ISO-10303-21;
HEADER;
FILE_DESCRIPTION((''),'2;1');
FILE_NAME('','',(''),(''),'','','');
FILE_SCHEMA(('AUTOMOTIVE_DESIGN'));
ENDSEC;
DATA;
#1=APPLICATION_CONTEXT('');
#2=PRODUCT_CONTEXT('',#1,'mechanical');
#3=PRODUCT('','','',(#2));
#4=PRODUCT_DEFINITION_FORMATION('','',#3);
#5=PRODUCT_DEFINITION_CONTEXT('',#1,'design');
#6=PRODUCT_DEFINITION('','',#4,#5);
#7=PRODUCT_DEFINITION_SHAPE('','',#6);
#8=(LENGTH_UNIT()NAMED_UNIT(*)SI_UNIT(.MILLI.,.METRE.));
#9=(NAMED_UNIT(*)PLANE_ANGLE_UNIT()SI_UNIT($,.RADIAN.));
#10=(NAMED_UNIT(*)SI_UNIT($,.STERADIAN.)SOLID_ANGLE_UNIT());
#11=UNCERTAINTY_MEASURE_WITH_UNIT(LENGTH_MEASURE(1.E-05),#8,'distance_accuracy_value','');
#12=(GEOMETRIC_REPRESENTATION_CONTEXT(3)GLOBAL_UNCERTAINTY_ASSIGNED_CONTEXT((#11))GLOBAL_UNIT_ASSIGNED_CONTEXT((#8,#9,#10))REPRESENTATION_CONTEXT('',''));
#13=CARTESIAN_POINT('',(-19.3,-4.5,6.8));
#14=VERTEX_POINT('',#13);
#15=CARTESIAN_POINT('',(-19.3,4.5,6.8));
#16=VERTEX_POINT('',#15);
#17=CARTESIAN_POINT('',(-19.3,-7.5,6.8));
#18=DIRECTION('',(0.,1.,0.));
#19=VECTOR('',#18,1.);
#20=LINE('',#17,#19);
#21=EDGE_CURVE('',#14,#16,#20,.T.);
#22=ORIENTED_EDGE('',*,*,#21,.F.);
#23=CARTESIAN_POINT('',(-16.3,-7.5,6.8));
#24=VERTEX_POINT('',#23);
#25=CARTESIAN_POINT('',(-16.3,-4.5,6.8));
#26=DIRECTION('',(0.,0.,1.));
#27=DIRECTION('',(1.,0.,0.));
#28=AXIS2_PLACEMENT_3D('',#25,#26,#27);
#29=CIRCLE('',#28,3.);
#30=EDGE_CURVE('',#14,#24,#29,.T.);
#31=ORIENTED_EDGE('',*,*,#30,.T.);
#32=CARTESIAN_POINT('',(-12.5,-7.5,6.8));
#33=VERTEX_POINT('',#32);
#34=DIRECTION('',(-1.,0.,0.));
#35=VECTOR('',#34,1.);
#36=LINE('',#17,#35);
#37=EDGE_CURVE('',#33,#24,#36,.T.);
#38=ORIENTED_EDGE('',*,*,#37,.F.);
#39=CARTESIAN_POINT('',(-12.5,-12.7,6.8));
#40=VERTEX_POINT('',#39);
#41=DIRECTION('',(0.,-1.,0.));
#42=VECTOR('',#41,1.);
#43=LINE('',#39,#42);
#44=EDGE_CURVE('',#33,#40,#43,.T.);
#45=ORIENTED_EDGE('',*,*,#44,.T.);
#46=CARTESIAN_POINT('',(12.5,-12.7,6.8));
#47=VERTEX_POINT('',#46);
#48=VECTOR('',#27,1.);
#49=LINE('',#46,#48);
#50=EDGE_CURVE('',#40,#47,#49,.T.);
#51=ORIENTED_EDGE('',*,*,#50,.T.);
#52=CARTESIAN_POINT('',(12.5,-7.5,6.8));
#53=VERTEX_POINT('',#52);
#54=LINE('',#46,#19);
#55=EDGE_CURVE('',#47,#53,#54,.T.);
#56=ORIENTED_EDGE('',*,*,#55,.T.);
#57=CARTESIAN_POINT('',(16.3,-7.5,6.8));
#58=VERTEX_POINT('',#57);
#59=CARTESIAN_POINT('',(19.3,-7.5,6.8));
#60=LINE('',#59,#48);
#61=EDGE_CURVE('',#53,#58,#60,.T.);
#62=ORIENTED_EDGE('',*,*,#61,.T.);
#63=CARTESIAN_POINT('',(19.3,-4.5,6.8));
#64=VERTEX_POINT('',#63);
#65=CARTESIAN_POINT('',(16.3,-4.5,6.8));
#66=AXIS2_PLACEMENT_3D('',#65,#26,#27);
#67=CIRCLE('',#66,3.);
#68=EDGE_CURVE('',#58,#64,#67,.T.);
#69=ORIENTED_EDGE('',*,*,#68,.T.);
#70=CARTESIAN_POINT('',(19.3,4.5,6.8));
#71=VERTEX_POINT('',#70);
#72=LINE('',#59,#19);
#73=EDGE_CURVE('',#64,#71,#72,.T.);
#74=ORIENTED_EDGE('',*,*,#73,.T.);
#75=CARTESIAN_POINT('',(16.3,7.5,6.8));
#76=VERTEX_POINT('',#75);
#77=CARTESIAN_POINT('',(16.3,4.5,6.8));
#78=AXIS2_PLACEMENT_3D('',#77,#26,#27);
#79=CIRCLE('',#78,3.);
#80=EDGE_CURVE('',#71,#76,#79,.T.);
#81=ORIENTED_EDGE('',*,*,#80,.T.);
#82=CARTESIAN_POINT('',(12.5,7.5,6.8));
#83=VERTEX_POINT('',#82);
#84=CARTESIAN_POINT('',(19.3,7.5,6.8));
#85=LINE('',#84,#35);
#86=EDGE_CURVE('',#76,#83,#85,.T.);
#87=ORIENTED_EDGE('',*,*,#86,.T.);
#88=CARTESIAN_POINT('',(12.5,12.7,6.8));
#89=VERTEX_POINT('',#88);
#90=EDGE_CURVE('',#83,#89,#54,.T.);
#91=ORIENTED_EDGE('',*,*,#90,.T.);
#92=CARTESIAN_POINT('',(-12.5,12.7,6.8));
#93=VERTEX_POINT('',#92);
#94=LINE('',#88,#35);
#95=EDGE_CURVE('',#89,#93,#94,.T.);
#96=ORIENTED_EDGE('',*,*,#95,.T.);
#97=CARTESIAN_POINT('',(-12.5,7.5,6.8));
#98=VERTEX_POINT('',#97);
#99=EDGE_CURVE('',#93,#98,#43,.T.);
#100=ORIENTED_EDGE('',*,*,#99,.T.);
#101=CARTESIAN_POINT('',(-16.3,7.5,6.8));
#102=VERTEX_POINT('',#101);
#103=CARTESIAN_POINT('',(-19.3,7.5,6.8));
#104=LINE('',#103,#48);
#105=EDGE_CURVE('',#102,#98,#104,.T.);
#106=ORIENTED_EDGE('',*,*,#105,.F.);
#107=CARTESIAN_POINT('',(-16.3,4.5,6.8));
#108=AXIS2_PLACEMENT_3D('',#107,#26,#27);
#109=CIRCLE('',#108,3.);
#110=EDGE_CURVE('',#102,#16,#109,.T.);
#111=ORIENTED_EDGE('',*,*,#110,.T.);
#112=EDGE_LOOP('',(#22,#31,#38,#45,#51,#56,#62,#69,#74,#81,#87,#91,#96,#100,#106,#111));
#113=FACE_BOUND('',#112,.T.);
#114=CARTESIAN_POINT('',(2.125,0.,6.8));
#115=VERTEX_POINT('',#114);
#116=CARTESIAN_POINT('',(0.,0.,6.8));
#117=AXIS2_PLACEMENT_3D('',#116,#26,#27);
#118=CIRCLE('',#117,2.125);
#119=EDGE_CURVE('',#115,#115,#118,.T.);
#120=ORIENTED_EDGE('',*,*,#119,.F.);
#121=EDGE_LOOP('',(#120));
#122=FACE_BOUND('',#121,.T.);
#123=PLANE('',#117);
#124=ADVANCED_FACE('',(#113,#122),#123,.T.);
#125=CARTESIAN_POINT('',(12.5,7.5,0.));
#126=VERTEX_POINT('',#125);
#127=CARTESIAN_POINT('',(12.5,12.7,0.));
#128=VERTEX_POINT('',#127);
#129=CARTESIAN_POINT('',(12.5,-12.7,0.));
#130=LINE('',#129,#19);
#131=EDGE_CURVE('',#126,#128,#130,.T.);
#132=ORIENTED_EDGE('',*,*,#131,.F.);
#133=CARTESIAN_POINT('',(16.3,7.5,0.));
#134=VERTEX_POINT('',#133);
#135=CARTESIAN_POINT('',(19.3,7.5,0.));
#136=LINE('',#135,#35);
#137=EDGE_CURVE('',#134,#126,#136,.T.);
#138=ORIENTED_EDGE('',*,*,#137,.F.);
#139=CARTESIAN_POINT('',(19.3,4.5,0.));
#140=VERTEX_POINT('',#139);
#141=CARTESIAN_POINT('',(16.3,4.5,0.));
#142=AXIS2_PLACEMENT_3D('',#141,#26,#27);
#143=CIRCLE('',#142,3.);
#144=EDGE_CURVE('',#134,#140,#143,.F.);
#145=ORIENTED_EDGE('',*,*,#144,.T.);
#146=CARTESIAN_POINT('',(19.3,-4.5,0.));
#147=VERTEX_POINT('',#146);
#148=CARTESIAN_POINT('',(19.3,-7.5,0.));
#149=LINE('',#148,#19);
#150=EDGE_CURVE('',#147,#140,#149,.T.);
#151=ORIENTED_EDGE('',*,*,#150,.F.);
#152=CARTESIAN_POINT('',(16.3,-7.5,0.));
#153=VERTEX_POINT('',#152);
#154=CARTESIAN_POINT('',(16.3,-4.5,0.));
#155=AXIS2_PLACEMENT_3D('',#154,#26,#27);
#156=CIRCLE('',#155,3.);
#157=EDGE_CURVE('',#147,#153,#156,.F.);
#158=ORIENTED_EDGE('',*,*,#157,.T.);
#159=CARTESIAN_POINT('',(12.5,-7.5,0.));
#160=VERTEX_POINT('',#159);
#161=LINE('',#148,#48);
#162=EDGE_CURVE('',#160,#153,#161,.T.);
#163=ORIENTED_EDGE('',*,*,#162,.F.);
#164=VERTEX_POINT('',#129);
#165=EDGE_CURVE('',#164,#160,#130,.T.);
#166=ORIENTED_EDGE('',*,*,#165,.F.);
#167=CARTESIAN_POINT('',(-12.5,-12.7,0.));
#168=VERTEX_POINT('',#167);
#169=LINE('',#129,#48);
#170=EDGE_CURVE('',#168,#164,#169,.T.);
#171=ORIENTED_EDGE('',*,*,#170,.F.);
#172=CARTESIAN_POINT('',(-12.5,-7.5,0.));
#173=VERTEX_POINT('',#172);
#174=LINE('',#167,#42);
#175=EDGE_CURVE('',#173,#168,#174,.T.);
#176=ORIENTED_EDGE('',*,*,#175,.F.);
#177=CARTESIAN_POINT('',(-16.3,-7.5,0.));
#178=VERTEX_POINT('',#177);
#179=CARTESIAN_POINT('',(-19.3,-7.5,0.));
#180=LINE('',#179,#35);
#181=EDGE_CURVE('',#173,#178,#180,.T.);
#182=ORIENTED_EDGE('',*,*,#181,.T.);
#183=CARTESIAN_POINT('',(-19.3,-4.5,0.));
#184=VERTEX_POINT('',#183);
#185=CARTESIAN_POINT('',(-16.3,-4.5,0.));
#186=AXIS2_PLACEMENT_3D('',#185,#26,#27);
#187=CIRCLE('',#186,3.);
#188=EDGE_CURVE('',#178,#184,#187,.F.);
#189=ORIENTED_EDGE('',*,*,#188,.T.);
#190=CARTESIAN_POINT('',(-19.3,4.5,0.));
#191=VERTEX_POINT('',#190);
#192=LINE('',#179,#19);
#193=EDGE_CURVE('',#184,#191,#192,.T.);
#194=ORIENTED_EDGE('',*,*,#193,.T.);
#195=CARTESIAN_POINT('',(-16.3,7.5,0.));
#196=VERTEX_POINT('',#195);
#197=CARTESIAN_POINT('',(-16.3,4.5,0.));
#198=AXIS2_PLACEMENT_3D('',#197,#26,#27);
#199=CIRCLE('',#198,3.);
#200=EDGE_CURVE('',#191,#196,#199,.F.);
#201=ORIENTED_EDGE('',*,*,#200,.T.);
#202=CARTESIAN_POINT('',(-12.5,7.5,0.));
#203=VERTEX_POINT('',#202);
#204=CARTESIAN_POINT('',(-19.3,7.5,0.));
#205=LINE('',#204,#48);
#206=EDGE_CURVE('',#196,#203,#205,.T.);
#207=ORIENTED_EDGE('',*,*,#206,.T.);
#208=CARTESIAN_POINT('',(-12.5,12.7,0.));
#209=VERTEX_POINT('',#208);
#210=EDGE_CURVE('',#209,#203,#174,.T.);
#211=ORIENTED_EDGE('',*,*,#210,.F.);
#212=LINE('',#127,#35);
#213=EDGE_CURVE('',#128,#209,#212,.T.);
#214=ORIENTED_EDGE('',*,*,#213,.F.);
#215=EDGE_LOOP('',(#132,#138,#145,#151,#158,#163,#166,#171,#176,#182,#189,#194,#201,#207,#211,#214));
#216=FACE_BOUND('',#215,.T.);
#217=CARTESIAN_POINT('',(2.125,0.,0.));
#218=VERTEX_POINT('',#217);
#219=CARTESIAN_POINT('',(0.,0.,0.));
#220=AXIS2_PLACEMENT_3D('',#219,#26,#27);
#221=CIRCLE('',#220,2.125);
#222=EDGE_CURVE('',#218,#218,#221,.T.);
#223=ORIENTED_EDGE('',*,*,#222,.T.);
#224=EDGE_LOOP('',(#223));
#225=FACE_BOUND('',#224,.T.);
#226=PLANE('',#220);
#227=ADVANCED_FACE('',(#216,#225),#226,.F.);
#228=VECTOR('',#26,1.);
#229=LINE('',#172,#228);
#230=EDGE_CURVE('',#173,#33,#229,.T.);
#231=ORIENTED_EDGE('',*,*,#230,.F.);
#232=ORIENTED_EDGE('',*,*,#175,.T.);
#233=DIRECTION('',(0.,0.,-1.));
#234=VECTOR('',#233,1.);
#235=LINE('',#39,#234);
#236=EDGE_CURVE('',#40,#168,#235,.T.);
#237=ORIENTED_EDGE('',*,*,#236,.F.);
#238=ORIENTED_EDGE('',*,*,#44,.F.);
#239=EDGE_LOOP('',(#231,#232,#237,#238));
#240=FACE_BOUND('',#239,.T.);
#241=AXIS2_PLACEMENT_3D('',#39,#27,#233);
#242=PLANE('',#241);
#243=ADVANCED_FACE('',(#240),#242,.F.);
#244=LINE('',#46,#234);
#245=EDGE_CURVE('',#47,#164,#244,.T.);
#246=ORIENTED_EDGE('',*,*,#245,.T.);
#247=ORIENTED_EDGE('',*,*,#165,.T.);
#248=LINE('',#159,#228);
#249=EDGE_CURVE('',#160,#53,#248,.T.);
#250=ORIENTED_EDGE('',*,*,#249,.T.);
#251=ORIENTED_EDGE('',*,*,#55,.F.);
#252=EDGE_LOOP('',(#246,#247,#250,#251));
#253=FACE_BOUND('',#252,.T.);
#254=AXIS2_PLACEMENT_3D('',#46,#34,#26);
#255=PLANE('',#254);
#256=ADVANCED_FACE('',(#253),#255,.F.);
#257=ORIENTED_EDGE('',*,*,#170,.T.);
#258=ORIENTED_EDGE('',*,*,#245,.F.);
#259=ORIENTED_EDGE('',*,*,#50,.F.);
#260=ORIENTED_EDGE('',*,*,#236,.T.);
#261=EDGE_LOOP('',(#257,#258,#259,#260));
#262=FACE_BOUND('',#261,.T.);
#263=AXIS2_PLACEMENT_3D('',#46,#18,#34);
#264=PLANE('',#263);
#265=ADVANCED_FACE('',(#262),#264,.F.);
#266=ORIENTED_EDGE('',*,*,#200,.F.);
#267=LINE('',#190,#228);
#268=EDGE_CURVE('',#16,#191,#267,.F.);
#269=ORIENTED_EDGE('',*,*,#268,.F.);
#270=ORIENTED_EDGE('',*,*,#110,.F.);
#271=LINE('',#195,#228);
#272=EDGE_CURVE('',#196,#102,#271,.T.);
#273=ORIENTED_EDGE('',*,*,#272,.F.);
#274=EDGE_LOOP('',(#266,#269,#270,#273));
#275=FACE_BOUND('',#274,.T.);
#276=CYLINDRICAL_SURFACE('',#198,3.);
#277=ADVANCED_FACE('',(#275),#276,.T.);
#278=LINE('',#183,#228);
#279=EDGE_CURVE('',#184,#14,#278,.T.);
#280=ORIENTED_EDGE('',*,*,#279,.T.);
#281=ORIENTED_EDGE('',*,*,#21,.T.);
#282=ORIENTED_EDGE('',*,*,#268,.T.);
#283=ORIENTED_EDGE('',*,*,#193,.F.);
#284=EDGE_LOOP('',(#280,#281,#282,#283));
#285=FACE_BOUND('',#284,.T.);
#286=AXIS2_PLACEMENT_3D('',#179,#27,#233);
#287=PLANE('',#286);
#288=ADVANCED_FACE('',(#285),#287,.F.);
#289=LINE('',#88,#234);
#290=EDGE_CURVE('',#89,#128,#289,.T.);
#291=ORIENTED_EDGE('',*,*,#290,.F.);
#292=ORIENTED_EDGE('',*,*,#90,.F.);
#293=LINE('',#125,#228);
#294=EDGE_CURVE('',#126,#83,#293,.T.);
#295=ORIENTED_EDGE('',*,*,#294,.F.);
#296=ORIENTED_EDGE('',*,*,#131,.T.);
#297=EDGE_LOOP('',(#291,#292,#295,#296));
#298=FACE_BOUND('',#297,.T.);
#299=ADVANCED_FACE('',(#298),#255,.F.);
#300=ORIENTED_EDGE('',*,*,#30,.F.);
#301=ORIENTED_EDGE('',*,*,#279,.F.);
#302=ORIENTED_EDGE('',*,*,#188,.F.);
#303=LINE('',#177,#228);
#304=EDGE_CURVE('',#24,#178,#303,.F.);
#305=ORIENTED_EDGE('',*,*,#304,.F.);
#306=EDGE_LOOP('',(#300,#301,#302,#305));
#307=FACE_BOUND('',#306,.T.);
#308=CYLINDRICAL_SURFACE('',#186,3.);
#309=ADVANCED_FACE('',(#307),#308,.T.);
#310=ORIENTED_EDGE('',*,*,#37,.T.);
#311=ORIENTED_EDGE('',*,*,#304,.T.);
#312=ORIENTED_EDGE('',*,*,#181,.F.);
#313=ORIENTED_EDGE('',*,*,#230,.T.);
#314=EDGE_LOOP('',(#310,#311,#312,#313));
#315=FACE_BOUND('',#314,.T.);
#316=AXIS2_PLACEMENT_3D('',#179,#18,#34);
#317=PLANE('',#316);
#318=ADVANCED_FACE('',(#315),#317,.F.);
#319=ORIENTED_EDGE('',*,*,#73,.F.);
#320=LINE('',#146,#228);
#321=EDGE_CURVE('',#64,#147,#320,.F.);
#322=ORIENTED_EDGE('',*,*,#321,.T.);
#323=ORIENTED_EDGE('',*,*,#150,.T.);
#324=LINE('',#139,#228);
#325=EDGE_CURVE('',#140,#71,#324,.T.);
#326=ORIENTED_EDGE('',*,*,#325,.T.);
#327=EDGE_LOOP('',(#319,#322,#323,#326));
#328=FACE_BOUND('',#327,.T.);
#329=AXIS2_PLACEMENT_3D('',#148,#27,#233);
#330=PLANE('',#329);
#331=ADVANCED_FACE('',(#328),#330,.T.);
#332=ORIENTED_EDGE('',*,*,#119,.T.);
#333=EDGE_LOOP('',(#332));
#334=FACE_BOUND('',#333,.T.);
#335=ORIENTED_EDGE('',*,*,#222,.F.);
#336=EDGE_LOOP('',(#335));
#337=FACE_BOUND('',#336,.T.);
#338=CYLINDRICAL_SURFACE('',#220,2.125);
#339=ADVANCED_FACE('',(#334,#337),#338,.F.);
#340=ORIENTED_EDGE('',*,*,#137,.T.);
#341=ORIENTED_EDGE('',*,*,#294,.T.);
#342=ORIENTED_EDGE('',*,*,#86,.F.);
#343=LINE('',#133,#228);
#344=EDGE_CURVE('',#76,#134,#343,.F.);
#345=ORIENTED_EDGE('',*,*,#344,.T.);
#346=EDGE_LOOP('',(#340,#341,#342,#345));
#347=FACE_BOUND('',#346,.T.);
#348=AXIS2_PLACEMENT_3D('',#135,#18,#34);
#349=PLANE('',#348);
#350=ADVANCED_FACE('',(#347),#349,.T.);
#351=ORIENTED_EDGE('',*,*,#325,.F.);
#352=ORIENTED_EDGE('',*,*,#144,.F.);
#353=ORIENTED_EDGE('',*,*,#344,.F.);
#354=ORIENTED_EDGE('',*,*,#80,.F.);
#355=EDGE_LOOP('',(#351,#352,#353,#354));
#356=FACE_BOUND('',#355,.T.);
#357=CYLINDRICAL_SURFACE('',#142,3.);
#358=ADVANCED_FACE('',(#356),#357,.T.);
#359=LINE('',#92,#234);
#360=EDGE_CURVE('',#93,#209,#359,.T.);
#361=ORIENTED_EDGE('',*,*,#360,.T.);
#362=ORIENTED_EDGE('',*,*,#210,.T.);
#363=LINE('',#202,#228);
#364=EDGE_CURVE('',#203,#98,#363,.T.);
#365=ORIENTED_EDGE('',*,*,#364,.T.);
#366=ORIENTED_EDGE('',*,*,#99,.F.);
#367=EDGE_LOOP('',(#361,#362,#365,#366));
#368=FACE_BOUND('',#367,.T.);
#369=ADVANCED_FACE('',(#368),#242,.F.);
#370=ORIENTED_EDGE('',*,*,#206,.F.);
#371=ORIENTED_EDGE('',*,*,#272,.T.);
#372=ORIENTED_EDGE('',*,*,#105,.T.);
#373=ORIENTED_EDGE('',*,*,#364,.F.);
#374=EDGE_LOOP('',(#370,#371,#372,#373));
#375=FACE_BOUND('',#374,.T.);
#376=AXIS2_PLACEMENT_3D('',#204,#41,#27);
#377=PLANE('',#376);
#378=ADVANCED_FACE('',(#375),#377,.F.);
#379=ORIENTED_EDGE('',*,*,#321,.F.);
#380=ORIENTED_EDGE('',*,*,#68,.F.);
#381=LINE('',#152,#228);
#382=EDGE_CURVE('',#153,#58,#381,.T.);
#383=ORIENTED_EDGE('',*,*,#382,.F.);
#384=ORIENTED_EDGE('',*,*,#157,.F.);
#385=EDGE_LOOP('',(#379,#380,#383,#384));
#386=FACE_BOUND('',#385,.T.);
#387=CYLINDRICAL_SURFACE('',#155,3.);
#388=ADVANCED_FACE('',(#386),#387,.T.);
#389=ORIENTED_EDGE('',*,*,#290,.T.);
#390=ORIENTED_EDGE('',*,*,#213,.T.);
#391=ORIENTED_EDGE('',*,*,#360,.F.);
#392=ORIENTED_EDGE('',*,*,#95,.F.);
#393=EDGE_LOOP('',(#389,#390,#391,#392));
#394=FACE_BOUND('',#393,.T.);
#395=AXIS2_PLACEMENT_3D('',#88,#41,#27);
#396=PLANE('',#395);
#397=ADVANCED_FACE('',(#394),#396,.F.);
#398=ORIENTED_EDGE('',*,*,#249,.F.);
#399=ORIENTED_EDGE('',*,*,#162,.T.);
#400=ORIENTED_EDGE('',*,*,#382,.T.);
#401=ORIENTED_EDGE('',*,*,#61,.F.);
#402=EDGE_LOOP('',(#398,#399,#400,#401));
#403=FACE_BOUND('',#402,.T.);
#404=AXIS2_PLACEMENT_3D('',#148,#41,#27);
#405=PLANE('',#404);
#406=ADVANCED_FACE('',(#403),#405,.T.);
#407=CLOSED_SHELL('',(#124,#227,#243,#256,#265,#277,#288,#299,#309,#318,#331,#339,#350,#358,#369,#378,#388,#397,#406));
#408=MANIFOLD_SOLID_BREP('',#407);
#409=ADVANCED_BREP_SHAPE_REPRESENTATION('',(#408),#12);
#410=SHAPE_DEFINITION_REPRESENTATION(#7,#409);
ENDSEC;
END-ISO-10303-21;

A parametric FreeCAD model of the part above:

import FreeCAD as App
import Part
import Sketcher


def edges_at(feature, points):
    """Names of the edges that pass closest to the given points."""
    edges = feature.Shape.Edges
    near = lambda p: min(range(len(edges)), key=lambda i: edges[i].distToShape(Part.Vertex(*p))[0])
    return sorted({f"Edge{near(p) + 1}" for p in points})


def add_polygon(sketch, points):
    """Adds a closed chain of lines whose ends are joined by coincident constraints."""
    first, n = sketch.GeometryCount, len(points)
    for a, b in zip(points, points[1:] + points[:1]):
        sketch.addGeometry(Part.LineSegment(App.Vector(*a, 0), App.Vector(*b, 0)), False)
    for i in range(n):
        sketch.addConstraint(Sketcher.Constraint("Coincident", first + i, 2, first + (i + 1) % n, 1))

doc = App.newDocument("Part")
body = doc.addObject("PartDesign::Body", "Body")

sketch1 = doc.addObject("Sketcher::SketchObject", "Sketch")
body.addObject(sketch1)
sketch1.AttachmentSupport = (doc.XY_Plane, [""])
sketch1.MapMode = "FlatFace"
add_polygon(sketch1, [(-12, 13), (-12, -13), (12, -13), (12, 13)])
sketch1.addConstraint([
    Sketcher.Constraint("Vertical", 0),
    Sketcher.Constraint("Horizontal", 1),
    Sketcher.Constraint("Vertical", 2),
    Sketcher.Constraint("Horizontal", 3),
    Sketcher.Constraint("Symmetric", 0, 2, 2, 2, -1, 1),
    Sketcher.Constraint("DistanceX", 1, 1, 1, 2, 25.0),
    Sketcher.Constraint("DistanceY", 0, 2, 0, 1, 25.4),
])
pad1 = doc.addObject("PartDesign::Pad", "Pad")
body.addObject(pad1)
pad1.Profile = sketch1
pad1.Length = 6.8

sketch2 = doc.addObject("Sketcher::SketchObject", "Sketch001")
body.addObject(sketch2)
sketch2.AttachmentSupport = (doc.XY_Plane, [""])
sketch2.MapMode = "FlatFace"
sketch2.AttachmentOffset = App.Placement(App.Vector(0, 0, 6.8), App.Rotation())
add_polygon(sketch2, [(12, 8), (12, -8), (19, -8), (19, 8)])
sketch2.addConstraint([
    Sketcher.Constraint("Vertical", 0),
    Sketcher.Constraint("Horizontal", 1),
    Sketcher.Constraint("Vertical", 2),
    Sketcher.Constraint("Horizontal", 3),
    Sketcher.Constraint("DistanceY", 0, 2, 0, 1, 15.0),
    Sketcher.Constraint("DistanceX", 1, 1, 1, 2, 6.8),
    Sketcher.Constraint("DistanceX", -1, 1, 0, 2, 12.5),
    Sketcher.Constraint("DistanceY", 0, 2, -1, 1, 7.5),
])
pad2 = doc.addObject("PartDesign::Pad", "Pad001")
body.addObject(pad2)
pad2.Profile = sketch2
pad2.Length = 6.8
pad2.Reversed = True
doc.recompute()

fillet = doc.addObject("PartDesign::Fillet", "Fillet")
body.addObject(fillet)
fillet.Base = (pad2, edges_at(pad2, [(19.3, 7.5, 3.4), (19.3, -7.5, 3.4)]))
fillet.Radius = 3
doc.recompute()

mirrored = doc.addObject("PartDesign::Mirrored", "Mirrored")
body.addObject(mirrored)
mirrored.Originals = [pad2]
mirrored.MirrorPlane = (doc.YZ_Plane, [""])
body.Tip = mirrored
doc.recompute()

fillet2 = doc.addObject("PartDesign::Fillet", "Fillet001")
body.addObject(fillet2)
fillet2.Base = (mirrored, edges_at(mirrored, [(-19.3, 7.5, 3.4), (-19.3, -7.5, 3.4)]))
fillet2.Radius = 3

sketch3 = doc.addObject("Sketcher::SketchObject", "Sketch002")
body.addObject(sketch3)
sketch3.AttachmentSupport = (doc.XY_Plane, [""])
sketch3.MapMode = "FlatFace"
sketch3.AttachmentOffset = App.Placement(App.Vector(0, 0, 6.8), App.Rotation())
sketch3.addGeometry(Part.Circle(App.Vector(0, 0, 0), App.Vector(0, 0, 1), 2.1), False)
sketch3.addConstraint([
    Sketcher.Constraint("Coincident", 0, 3, -1, 1),
    Sketcher.Constraint("Diameter", 0, 4.25),
])
pocket1 = doc.addObject("PartDesign::Pocket", "Pocket")
body.addObject(pocket1)
pocket1.Profile = sketch3
pocket1.Length = 6.8

doc.recompute()
